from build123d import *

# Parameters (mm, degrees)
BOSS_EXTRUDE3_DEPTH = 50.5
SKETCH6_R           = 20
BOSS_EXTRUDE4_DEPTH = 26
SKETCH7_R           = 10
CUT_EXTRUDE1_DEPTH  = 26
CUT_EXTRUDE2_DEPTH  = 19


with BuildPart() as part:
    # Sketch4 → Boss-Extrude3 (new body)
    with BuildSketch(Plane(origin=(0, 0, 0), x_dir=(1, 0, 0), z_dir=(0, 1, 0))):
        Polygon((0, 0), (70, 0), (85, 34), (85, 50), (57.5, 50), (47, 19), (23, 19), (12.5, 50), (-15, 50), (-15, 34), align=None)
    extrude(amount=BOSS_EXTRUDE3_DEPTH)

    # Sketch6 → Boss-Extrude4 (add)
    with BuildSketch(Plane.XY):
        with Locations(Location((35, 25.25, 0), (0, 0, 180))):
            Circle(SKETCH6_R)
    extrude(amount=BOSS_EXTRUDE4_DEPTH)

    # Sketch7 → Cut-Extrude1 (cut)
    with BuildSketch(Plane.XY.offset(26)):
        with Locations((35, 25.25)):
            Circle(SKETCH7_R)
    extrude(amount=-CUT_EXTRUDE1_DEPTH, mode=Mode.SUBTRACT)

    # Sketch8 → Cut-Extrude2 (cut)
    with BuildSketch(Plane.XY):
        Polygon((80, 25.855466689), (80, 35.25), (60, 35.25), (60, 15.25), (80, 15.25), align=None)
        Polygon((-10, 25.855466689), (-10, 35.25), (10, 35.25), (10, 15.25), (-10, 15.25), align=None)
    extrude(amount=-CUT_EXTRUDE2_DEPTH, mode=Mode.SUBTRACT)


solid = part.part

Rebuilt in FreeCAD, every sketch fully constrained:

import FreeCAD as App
import Part
import Sketcher

V = App.Vector


def add_polygon(sketch, points):
    """Adds a closed chain of lines whose ends are joined by coincident constraints."""
    first, n = sketch.GeometryCount, len(points)
    for a, b in zip(points, points[1:] + points[:1]):
        sketch.addGeometry(Part.LineSegment(App.Vector(*a, 0), App.Vector(*b, 0)), False)
    for i in range(n):
        sketch.addConstraint(Sketcher.Constraint("Coincident", first + i, 2, first + (i + 1) % n, 1))

doc = App.newDocument("Part")
body = doc.addObject("PartDesign::Body", "Body")

# Sketch on XZ plane
sketch1 = body.newObject("Sketcher::SketchObject", "Sketch")
sketch1.AttachmentSupport = (doc.getObject("XZ_Plane"), [""])
sketch1.MapMode = "FlatFace"
add_polygon(sketch1, [(0, 0), (70, 0), (85, -34), (85, -50), (58, -50), (47, -19), (23, -19), (12, -50), (-15, -50), (-15, -34)])  # lines 0-9
sketch1.addConstraint([
    Sketcher.Constraint("Horizontal", 0),
    Sketcher.Constraint("Vertical", 2),
    Sketcher.Constraint("Horizontal", 3),
    Sketcher.Constraint("Horizontal", 5),
    Sketcher.Constraint("Horizontal", 7),
    Sketcher.Constraint("Vertical", 8),
    Sketcher.Constraint("Coincident", 9, 2, -1, 1),
    Sketcher.Constraint("Horizontal", 3, 2, 6, 2),
    Sketcher.Constraint("Horizontal", 1, 2, 8, 2),
    Sketcher.Constraint("Equal", 3, 7),
    Sketcher.Constraint("Equal", 4, 6),
    Sketcher.Constraint("Equal", 1, 9),
    Sketcher.Constraint("DistanceX", 0, 1, 0, 2, 70.0),
    Sketcher.Constraint("DistanceX", 5, 2, 5, 1, 24.0),
    Sketcher.Constraint("DistanceY", 2, 2, 2, 1, 16.0),
    Sketcher.Constraint("DistanceX", 3, 2, 3, 1, 27.5),
    Sketcher.Constraint("DistanceX", -1, 1, 1, 2, 85.0),
    Sketcher.Constraint("DistanceY", 1, 2, -1, 1, 34.0),
    Sketcher.Constraint("DistanceY", 4, 2, -1, 1, 19.0),
])
pad1 = body.newObject("PartDesign::Pad", "Pad")
pad1.Profile = sketch1
pad1.Length = 50.5
pad1.Reversed = True

# Sketch on XY plane
sketch2 = body.newObject("Sketcher::SketchObject", "Sketch001")
sketch2.AttachmentSupport = (doc.getObject("XY_Plane"), [""])
sketch2.MapMode = "FlatFace"
sketch2.addGeometry(Part.Circle(V(35, 25, 0), V(0, 0, 1), 20), False)
sketch2.addConstraint([
    Sketcher.Constraint("Diameter", 0, 40.0),
    Sketcher.Constraint("DistanceX", -1, 1, 0, 3, 35.0),
    Sketcher.Constraint("DistanceY", -1, 1, 0, 3, 25.25),
])
pad2 = body.newObject("PartDesign::Pad", "Pad001")
pad2.Profile = sketch2
pad2.Length = 26

# Sketch on XY plane
sketch3 = body.newObject("Sketcher::SketchObject", "Sketch002")
sketch3.AttachmentSupport = (doc.getObject("XY_Plane"), [""])
sketch3.MapMode = "FlatFace"
sketch3.AttachmentOffset = App.Placement(V(0, 0, 26), App.Rotation())
sketch3.addGeometry(Part.Circle(V(35, 25, 0), V(0, 0, 1), 10), False)
sketch3.addConstraint([
    Sketcher.Constraint("Diameter", 0, 20.0),
    Sketcher.Constraint("DistanceX", -1, 1, 0, 3, 35.0),
    Sketcher.Constraint("DistanceY", -1, 1, 0, 3, 25.25),
])
pocket1 = body.newObject("PartDesign::Pocket", "Pocket")
pocket1.Profile = sketch3
pocket1.Length = 26

# Sketch on XY plane
sketch4 = body.newObject("Sketcher::SketchObject", "Sketch003")
sketch4.AttachmentSupport = (doc.getObject("XY_Plane"), [""])
sketch4.MapMode = "FlatFace"
add_polygon(sketch4, [(80, 35), (60, 35), (60, 15), (80, 15)])  # lines 0-3
add_polygon(sketch4, [(-10, 35), (-10, 15), (10, 15), (10, 35)])  # lines 4-7
sketch4.addConstraint([
    Sketcher.Constraint("Horizontal", 0),
    Sketcher.Constraint("Vertical", 1),
    Sketcher.Constraint("Horizontal", 2),
    Sketcher.Constraint("Vertical", 3),
    Sketcher.Constraint("Vertical", 4),
    Sketcher.Constraint("Horizontal", 5),
    Sketcher.Constraint("Vertical", 6),
    Sketcher.Constraint("Horizontal", 7),
    Sketcher.Constraint("Horizontal", 2, 2, 4, 2),
    Sketcher.Constraint("Horizontal", 3, 2, 6, 2),
    Sketcher.Constraint("Equal", 2, 5),
    Sketcher.Constraint("Equal", 7, 1),
    Sketcher.Constraint("DistanceX", 0, 2, 0, 1, 20.0),
    Sketcher.Constraint("DistanceX", -1, 1, 0, 2, 60.0),
    Sketcher.Constraint("DistanceX", 4, 2, -1, 1, 10.0),
    Sketcher.Constraint("DistanceY", -1, 1, 0, 2, 35.25),
])
pocket2 = body.newObject("PartDesign::Pocket", "Pocket001")
pocket2.Profile = sketch4
pocket2.Length = 19

doc.recompute()
